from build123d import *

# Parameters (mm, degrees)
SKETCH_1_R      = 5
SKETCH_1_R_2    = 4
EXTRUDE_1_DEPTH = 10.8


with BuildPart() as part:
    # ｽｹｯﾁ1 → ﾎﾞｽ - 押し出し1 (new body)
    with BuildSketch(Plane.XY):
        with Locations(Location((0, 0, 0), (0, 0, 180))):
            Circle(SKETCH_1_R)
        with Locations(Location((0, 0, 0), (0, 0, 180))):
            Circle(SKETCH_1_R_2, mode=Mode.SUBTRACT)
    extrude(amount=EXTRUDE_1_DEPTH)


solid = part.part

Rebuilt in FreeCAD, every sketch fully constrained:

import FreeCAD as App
import Part
import Sketcher
from FreeCAD import Vector

doc = App.newDocument("Part")
body = doc.addObject("PartDesign::Body", "Body")

sketch1 = body.newObject("Sketcher::SketchObject", "Sketch")
sketch1.AttachmentSupport = (doc.getObject("XY_Plane"), [""])
sketch1.MapMode = "FlatFace"
sketch1.addGeometry([
    Part.Circle(Vector(0, 0, 0), Vector(0, 0, 1), 5),
    Part.Circle(Vector(0, 0, 0), Vector(0, 0, 1), 4),
], False)
sketch1.addConstraint([
    Sketcher.Constraint("Coincident", 0, 3, -1, 1),
    Sketcher.Constraint("Coincident", 1, 3, -1, 1),
    Sketcher.Constraint("Diameter", 0, 10.0),
    Sketcher.Constraint("Diameter", 1, 8.0),
])
pad1 = body.newObject("PartDesign::Pad", "Pad")
pad1.Profile = sketch1
pad1.Length = 10.8

doc.recompute()
